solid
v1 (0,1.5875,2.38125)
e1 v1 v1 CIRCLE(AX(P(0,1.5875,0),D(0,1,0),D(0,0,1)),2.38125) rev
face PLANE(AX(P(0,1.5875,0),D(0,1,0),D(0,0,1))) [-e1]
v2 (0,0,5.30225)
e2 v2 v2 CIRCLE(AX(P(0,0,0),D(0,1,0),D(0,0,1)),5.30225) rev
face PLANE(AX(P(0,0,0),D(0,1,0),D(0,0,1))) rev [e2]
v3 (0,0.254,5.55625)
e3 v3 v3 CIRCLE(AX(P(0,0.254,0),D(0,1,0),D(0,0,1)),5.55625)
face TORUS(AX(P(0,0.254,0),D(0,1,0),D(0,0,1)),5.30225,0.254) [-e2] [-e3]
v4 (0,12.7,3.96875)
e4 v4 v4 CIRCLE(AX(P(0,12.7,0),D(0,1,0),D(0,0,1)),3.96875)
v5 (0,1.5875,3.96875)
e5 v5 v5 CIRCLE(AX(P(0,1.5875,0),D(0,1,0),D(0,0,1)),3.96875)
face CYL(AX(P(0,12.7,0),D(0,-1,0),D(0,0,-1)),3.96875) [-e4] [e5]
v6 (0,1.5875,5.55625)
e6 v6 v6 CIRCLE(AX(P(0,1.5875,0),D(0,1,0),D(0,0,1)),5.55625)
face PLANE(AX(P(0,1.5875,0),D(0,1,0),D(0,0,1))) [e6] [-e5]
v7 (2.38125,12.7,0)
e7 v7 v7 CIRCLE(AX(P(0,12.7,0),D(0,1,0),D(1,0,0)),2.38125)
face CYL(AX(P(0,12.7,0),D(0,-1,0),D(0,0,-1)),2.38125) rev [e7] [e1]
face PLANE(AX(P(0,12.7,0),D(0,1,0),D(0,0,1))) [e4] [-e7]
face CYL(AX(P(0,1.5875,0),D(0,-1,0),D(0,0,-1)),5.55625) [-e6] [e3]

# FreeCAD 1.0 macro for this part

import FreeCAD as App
import Part
import Sketcher
Q = App.Units.Quantity


def edges_at(feature, points):
    """Names of the edges that pass closest to the given points."""
    edges = feature.Shape.Edges
    near = lambda p: min(range(len(edges)), key=lambda i: edges[i].distToShape(Part.Vertex(*p))[0])
    return sorted({f"Edge{near(p) + 1}" for p in points})

doc = App.newDocument("Part")
body = doc.addObject("PartDesign::Body", "Body")

# Sketch on XZ plane
sketch1 = body.newObject("Sketcher::SketchObject", "Sketch")
sketch1.AttachmentSupport = (doc.getObject("XZ_Plane"), [""])
sketch1.MapMode = "FlatFace"
sketch1.addGeometry(Part.Circle(App.Vector(0, 0, 0), App.Vector(0, 0, 1), 6), False)
sketch1.addConstraint(Sketcher.Constraint("Coincident", 0, 3, -1, 1))
sketch1.addConstraint(Sketcher.Constraint("Diameter", 0, Q("0.4375 in")))
pad1 = body.newObject("PartDesign::Pad", "Pad")
pad1.Profile = sketch1
pad1.Length = Q("0.0625 in")
pad1.Reversed = True

# Sketch on XZ plane
sketch2 = body.newObject("Sketcher::SketchObject", "Sketch001")
sketch2.AttachmentSupport = (doc.getObject("XZ_Plane"), [""])
sketch2.MapMode = "FlatFace"
sketch2.AttachmentOffset = App.Placement(App.Vector(0, 0, -0.0625 * 25.4), App.Rotation())
sketch2.addGeometry(Part.Circle(App.Vector(0, 0, 0), App.Vector(0, 0, 1), 4), False)
sketch2.addGeometry(Part.Circle(App.Vector(0, 0, 0), App.Vector(0, 0, 1), 2.4), False)
sketch2.addConstraint(Sketcher.Constraint("Coincident", 0, 3, -1, 1))
sketch2.addConstraint(Sketcher.Constraint("Coincident", 1, 3, -1, 1))
sketch2.addConstraint(Sketcher.Constraint("Diameter", 0, Q("0.3125 in")))
sketch2.addConstraint(Sketcher.Constraint("Diameter", 1, Q("0.1875 in")))
pad2 = body.newObject("PartDesign::Pad", "Pad001")
pad2.Profile = sketch2
pad2.Length = Q("0.4375 in")
pad2.Reversed = True
doc.recompute()

fillet = body.newObject("PartDesign::Fillet", "Fillet")
fillet.Base = (pad2, edges_at(pad2, [(0, 0, -5.556)]))
fillet.Radius = Q("0.01 in")

doc.recompute()
